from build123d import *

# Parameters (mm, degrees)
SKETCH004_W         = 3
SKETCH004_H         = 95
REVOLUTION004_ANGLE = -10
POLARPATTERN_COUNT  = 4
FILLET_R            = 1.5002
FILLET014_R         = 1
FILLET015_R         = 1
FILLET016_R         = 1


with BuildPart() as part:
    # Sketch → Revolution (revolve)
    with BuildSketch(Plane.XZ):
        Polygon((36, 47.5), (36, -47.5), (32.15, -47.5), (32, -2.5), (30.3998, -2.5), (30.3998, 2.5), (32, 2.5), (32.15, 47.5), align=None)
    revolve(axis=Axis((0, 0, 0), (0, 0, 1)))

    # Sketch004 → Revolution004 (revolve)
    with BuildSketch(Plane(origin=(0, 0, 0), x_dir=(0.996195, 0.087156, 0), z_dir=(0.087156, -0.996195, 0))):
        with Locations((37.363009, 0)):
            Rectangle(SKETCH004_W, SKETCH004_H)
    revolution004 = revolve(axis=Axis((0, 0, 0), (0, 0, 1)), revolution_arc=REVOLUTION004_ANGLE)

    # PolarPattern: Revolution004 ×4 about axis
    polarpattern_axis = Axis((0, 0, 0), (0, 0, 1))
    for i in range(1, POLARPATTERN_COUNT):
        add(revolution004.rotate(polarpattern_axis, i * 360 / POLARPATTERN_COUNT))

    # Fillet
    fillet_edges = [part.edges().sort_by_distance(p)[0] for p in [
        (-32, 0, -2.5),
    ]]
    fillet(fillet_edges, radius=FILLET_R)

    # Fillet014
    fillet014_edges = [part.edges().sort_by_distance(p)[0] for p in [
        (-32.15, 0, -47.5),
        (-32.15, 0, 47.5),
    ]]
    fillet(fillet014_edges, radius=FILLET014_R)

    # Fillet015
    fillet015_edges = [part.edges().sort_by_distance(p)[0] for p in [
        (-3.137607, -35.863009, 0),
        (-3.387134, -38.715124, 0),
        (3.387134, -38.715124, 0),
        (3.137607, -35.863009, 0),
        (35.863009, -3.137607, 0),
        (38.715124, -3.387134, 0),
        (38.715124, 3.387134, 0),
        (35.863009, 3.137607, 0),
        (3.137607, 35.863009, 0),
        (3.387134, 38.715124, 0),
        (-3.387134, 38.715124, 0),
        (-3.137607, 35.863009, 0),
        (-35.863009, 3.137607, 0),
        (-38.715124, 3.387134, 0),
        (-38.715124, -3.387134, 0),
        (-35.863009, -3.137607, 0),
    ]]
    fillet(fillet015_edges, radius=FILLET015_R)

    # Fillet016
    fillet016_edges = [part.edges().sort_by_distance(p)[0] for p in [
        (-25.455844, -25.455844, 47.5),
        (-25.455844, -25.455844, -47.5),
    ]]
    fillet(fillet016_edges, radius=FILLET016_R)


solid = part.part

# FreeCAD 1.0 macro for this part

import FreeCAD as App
import Part
import Sketcher
Q = App.Units.Quantity


def edges_at(feature, points):
    """Names of the edges that pass closest to the given points."""
    edges = feature.Shape.Edges
    near = lambda p: min(range(len(edges)), key=lambda i: edges[i].distToShape(Part.Vertex(*p))[0])
    return sorted({f"Edge{near(p) + 1}" for p in points})


def add_polygon(sketch, points):
    """Adds a closed chain of lines whose ends are joined by coincident constraints."""
    first, n = sketch.GeometryCount, len(points)
    for a, b in zip(points, points[1:] + points[:1]):
        sketch.addGeometry(Part.LineSegment(App.Vector(*a, 0), App.Vector(*b, 0)), False)
    for i in range(n):
        sketch.addConstraint(Sketcher.Constraint("Coincident", first + i, 2, first + (i + 1) % n, 1))

doc = App.newDocument("Part")
params = doc.addObject("Spreadsheet::Sheet", "Params")
for row, (alias, value) in enumerate([
    ("sketch1_height", "95 mm"),
    ("sketch1_height2", "5 mm"),
    ("sketch1_width", "3.85 mm"),
    ("revolution_angle", "360 deg"),
    ("sketch2_width", "3 mm"),
    ("sketch2_height", "95 mm"),
    ("revolution2_angle", "10 deg"),
    ("fillet_radius", "1.5002 mm"),
    ("fillet2_radius", "1 mm"),
    ("fillet3_radius", "1 mm"),
    ("fillet4_radius", "1 mm"),
], start=1):
    params.set(f"A{row}", alias)
    params.set(f"B{row}", "=" + value)
    params.setAlias(f"B{row}", alias)

body = doc.addObject("PartDesign::Body", "Body")

# Sketch on XZ plane
sketch1 = body.newObject("Sketcher::SketchObject", "Sketch")
sketch1.AttachmentSupport = (doc.getObject("XZ_Plane"), [""])
sketch1.MapMode = "FlatFace"
add_polygon(sketch1, [(36, -47.5), (36, 47.5), (32.1, 47.5), (32, 2.5), (30.4, 2.5), (30.4, -2.5), (32, -2.5), (32.1, -47.5)])  # lines 0-7
sketch1.addConstraint([
    Sketcher.Constraint("Vertical", 0),
    Sketcher.Constraint("Horizontal", 1),
    Sketcher.Constraint("Horizontal", 3),
    Sketcher.Constraint("Vertical", 4),
    Sketcher.Constraint("Horizontal", 5),
    Sketcher.Constraint("Horizontal", 7),
    Sketcher.Constraint("Symmetric", 2, 2, 5, 2, -1),
    Sketcher.Constraint("Symmetric", 1, 2, 6, 2, -1),
    Sketcher.Constraint("DistanceY", 0, 1, 0, 2, Q("95 mm")),
    Sketcher.Constraint("DistanceY", 4, 2, 4, 1, Q("5 mm")),
    Sketcher.Constraint("DistanceX", -1, 1, 0, 2, Q("36 mm")),
    Sketcher.Constraint("DistanceX", -1, 1, 2, 2, Q("32 mm")),
    Sketcher.Constraint("DistanceX", 1, 2, 1, 1, Q("3.85 mm")),
    Sketcher.Constraint("DistanceX", 3, 2, 3, 1, Q("1.6002 mm")),
])
sketch1.setExpression("Constraints[16]", "Params.sketch1_height")
sketch1.setExpression("Constraints[17]", "Params.sketch1_height2")
sketch1.setExpression("Constraints[20]", "Params.sketch1_width")
revolution = body.newObject("PartDesign::Revolution", "Revolution")
revolution.Profile = sketch1
revolution.ReferenceAxis = (sketch1, ["V_Axis"])
revolution.setExpression("Angle", "Params.revolution_angle")

# Sketch on an angled plane
sketch2 = body.newObject("Sketcher::SketchObject", "Sketch001")
sketch2.Placement = App.Placement(App.Vector(0, 0, 0), App.Rotation(App.Vector(0.996194678, 0.087155972, 0), App.Vector(0, 0, 1), App.Vector(0.087155972, -0.996194678, 0), "ZXY"))
add_polygon(sketch2, [(35.9, 47.5), (35.9, -47.5), (38.9, -47.5), (38.9, 47.5)])  # lines 0-3
sketch2.addConstraint([
    Sketcher.Constraint("Vertical", 0),
    Sketcher.Constraint("Horizontal", 1),
    Sketcher.Constraint("Vertical", 2),
    Sketcher.Constraint("Horizontal", 3),
    Sketcher.Constraint("DistanceX", 1, 1, 1, 2, Q("3 mm")),
    Sketcher.Constraint("DistanceY", 0, 2, 0, 1, Q("95 mm")),
    Sketcher.Constraint("DistanceY", 0, 2, -1, 1, Q("47.5 mm")),
    Sketcher.Constraint("DistanceX", -1, 1, 0, 2, Q("35.863009 mm")),
])
sketch2.setExpression("Constraints[8]", "Params.sketch2_width")
sketch2.setExpression("Constraints[9]", "Params.sketch2_height")
revolution2 = body.newObject("PartDesign::Revolution", "Revolution001")
revolution2.Profile = sketch2
revolution2.ReferenceAxis = (sketch2, ["V_Axis"])
revolution2.setExpression("Angle", "Params.revolution2_angle")
revolution2.Reversed = True
doc.recompute()

polarpattern = body.newObject("PartDesign::PolarPattern", "PolarPattern")
polarpattern.Originals = [revolution2]
polarpattern.Axis = (doc.getObject("Z_Axis"), [""])
polarpattern.Angle = 360
polarpattern.Occurrences = 4
body.Tip = polarpattern
doc.recompute()

fillet = body.newObject("PartDesign::Fillet", "Fillet")
fillet.Base = (polarpattern, edges_at(polarpattern, [(-32, 0, -2.5)]))
fillet.setExpression("Radius", "Params.fillet_radius")
doc.recompute()

fillet2 = body.newObject("PartDesign::Fillet", "Fillet001")
fillet2.Base = (fillet, edges_at(fillet, [(-32.15, 0, -47.5), (-32.15, 0, 47.5)]))
fillet2.setExpression("Radius", "Params.fillet2_radius")
doc.recompute()

fillet3 = body.newObject("PartDesign::Fillet", "Fillet002")
fillet3.Base = (fillet2, edges_at(fillet2, [
    (-3.138, -35.863, 0),
    (-3.387, -38.715, 0),
    (3.387, -38.715, 0),
    (3.138, -35.863, 0),
    (35.863, -3.138, 0),
    (38.715, -3.387, 0),
    (38.715, 3.387, 0),
    (35.863, 3.138, 0),
    (3.138, 35.863, 0),
    (3.387, 38.715, 0),
    (-3.387, 38.715, 0),
    (-3.138, 35.863, 0),
    (-35.863, 3.138, 0),
    (-38.715, 3.387, 0),
    (-38.715, -3.387, 0),
    (-35.863, -3.138, 0),
]))
fillet3.setExpression("Radius", "Params.fillet3_radius")
doc.recompute()

fillet4 = body.newObject("PartDesign::Fillet", "Fillet003")
fillet4.Base = (fillet3, edges_at(fillet3, [(-25.456, -25.456, 47.5), (-25.456, -25.456, -47.5)]))
fillet4.setExpression("Radius", "Params.fillet4_radius")

doc.recompute()
